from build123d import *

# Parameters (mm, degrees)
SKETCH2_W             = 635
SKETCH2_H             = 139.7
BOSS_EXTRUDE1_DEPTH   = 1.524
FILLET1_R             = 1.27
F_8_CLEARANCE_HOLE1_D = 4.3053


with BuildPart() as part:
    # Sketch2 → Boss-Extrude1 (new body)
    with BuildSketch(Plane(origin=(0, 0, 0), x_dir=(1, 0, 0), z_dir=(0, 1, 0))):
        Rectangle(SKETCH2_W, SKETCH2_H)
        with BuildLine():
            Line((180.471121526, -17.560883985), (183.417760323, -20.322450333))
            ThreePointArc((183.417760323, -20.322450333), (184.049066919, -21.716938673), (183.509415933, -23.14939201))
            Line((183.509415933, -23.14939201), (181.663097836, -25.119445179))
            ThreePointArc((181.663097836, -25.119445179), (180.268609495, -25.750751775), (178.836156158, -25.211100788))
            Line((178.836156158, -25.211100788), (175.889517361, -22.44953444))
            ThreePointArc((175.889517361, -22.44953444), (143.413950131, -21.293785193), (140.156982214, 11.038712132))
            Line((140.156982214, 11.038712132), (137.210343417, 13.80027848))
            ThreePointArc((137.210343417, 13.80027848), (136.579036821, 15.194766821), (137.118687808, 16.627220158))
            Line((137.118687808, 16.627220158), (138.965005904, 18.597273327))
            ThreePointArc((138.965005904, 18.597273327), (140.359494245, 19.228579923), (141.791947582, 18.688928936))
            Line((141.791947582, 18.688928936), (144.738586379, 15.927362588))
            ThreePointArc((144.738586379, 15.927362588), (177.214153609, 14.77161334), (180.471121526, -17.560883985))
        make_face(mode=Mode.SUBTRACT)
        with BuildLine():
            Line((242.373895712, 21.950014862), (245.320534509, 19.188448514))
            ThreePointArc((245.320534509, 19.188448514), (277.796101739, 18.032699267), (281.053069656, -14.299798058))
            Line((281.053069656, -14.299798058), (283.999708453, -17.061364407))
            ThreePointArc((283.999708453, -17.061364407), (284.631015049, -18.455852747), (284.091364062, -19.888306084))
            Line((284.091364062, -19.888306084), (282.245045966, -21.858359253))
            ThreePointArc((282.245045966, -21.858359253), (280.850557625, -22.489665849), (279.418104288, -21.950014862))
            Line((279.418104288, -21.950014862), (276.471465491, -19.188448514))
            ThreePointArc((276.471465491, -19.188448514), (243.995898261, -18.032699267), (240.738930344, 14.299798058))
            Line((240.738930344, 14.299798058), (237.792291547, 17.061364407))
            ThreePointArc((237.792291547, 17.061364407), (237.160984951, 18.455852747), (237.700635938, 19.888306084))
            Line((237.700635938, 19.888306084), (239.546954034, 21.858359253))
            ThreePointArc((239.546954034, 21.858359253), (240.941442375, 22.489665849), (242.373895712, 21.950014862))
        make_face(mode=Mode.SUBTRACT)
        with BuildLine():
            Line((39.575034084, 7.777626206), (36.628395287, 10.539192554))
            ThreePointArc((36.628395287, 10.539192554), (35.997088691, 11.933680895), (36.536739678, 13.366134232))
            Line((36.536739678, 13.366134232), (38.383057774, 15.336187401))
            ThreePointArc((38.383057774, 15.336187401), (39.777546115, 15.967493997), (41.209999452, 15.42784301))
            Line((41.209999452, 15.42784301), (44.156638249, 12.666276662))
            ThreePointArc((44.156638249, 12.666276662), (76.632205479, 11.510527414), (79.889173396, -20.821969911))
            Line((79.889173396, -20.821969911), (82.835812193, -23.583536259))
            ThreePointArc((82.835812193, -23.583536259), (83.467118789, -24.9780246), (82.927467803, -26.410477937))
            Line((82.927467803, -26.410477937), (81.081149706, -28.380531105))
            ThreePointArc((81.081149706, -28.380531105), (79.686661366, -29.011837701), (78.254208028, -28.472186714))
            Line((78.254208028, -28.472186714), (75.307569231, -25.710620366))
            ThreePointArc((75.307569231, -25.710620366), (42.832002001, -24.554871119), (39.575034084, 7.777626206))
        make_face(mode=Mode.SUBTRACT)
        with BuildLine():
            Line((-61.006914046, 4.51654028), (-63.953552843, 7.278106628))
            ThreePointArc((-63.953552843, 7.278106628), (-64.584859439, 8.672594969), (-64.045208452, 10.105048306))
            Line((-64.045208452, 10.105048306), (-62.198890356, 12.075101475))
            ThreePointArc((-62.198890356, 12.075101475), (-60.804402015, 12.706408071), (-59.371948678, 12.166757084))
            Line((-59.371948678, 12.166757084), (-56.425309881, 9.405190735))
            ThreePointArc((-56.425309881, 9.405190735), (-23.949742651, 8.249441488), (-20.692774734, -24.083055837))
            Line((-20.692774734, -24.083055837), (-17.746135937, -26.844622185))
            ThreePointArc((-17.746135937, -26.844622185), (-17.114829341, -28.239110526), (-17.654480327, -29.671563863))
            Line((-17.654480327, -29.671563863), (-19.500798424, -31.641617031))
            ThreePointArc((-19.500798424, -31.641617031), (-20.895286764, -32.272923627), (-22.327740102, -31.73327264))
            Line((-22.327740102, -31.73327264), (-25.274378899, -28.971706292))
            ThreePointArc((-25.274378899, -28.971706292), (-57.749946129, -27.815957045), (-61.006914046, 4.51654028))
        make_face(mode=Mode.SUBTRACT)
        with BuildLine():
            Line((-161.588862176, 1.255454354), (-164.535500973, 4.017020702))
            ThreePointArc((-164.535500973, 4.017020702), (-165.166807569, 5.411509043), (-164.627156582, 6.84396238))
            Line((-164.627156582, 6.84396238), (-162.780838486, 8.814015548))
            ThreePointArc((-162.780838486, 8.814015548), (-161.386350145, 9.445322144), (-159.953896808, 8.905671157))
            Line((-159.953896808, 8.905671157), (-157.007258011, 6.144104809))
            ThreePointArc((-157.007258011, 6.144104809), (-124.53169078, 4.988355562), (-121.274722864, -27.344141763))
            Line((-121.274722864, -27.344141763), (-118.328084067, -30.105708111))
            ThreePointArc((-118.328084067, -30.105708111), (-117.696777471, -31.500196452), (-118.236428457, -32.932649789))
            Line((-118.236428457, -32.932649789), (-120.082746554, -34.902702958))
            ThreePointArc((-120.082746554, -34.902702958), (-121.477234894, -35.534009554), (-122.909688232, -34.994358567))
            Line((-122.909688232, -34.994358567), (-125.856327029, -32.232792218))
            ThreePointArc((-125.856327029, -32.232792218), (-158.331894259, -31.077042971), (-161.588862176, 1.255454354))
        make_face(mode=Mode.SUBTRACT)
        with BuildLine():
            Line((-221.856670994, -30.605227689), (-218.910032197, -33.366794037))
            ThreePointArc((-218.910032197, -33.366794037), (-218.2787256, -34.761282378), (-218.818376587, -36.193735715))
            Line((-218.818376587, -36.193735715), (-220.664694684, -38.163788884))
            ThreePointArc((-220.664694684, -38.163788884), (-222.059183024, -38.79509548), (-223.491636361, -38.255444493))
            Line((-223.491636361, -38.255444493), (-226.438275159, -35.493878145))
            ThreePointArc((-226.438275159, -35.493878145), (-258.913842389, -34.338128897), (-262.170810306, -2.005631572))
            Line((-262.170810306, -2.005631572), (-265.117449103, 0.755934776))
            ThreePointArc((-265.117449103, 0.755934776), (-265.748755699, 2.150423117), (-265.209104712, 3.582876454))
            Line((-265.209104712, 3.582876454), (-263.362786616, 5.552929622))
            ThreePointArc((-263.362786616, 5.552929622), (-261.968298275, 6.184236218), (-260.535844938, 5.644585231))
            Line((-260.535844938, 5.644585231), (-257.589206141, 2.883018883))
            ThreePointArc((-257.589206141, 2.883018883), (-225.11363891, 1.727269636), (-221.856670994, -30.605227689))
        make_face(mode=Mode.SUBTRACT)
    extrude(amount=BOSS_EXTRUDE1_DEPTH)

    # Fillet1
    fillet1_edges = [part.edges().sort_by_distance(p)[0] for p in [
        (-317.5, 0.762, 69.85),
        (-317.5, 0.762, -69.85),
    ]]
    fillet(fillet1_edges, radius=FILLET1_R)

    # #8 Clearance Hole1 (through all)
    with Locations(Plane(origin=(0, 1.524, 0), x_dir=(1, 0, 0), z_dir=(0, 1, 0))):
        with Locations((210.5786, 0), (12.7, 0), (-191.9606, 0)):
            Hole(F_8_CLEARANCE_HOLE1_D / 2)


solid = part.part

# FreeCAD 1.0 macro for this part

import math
import FreeCAD as App
import Part
import Sketcher
Q = App.Units.Quantity


def edges_at(feature, points):
    """Names of the edges that pass closest to the given points."""
    edges = feature.Shape.Edges
    near = lambda p: min(range(len(edges)), key=lambda i: edges[i].distToShape(Part.Vertex(*p))[0])
    return sorted({f"Edge{near(p) + 1}" for p in points})

doc = App.newDocument("Part")
body = doc.addObject("PartDesign::Body", "Body")

# Sketch on XZ plane
sketch1 = body.newObject("Sketcher::SketchObject", "Sketch")
sketch1.AttachmentSupport = (doc.getObject("XZ_Plane"), [""])
sketch1.MapMode = "FlatFace"
sketch1.addGeometry(Part.LineSegment(App.Vector(-317.5, -69.8, 0), App.Vector(-317.5, 69.8, 0)), False)
sketch1.addGeometry(Part.LineSegment(App.Vector(-317.5, 69.8, 0), App.Vector(317.5, 69.8, 0)), False)
sketch1.addGeometry(Part.LineSegment(App.Vector(317.5, 69.8, 0), App.Vector(317.5, -69.8, 0)), False)
sketch1.addGeometry(Part.LineSegment(App.Vector(317.5, -69.8, 0), App.Vector(-317.5, -69.8, 0)), False)
sketch1.addGeometry(Part.ArcOfCircle(Part.Circle(App.Vector(-242, 16.3, 0), App.Vector(0, 0, 1), 24.7), math.radians(-129), math.radians(35)), False)
sketch1.addGeometry(Part.LineSegment(App.Vector(-221.9, 30.6, 0), App.Vector(-218.9, 33.4, 0)), False)
sketch1.addGeometry(Part.ArcOfCircle(Part.Circle(App.Vector(-220.3, 34.8, 0), App.Vector(0, 0, 1), 2), math.radians(-47), math.radians(43)), False)
sketch1.addGeometry(Part.LineSegment(App.Vector(-218.8, 36.2, 0), App.Vector(-220.7, 38.2, 0)), False)
sketch1.addGeometry(Part.ArcOfCircle(Part.Circle(App.Vector(-222.1, 36.8, 0), App.Vector(0, 0, 1), 2), math.radians(43), math.radians(133)), False)
sketch1.addGeometry(Part.LineSegment(App.Vector(-223.5, 38.3, 0), App.Vector(-226.4, 35.5, 0)), False)
sketch1.addGeometry(Part.ArcOfCircle(Part.Circle(App.Vector(-242, 16.3, 0), App.Vector(0, 0, 1), 24.7), math.radians(51), math.radians(215)), False)
sketch1.addGeometry(Part.LineSegment(App.Vector(-262.2, 2, 0), App.Vector(-265.1, -0.8, 0)), False)
sketch1.addGeometry(Part.ArcOfCircle(Part.Circle(App.Vector(-263.7, -2.2, 0), App.Vector(0, 0, 1), 2), math.radians(133), math.radians(223)), False)
sketch1.addGeometry(Part.LineSegment(App.Vector(-265.2, -3.6, 0), App.Vector(-263.4, -5.6, 0)), False)
sketch1.addGeometry(Part.ArcOfCircle(Part.Circle(App.Vector(-261.9, -4.2, 0), App.Vector(0, 0, 1), 2), math.radians(-137), math.radians(-47)), False)
sketch1.addGeometry(Part.LineSegment(App.Vector(-260.5, -5.6, 0), App.Vector(-257.6, -2.9, 0)), False)
sketch1.addGeometry(Part.ArcOfCircle(Part.Circle(App.Vector(-141.4, 13, 0), App.Vector(0, 0, 1), 24.7), math.radians(51), math.radians(215)), False)
sketch1.addGeometry(Part.LineSegment(App.Vector(-161.6, -1.3, 0), App.Vector(-164.5, -4, 0)), False)
sketch1.addGeometry(Part.ArcOfCircle(Part.Circle(App.Vector(-163.2, -5.5, 0), App.Vector(0, 0, 1), 2), math.radians(133), math.radians(223)), False)
sketch1.addGeometry(Part.LineSegment(App.Vector(-164.6, -6.8, 0), App.Vector(-162.8, -8.8, 0)), False)
sketch1.addGeometry(Part.ArcOfCircle(Part.Circle(App.Vector(-161.3, -7.4, 0), App.Vector(0, 0, 1), 2), math.radians(-137), math.radians(-47)), False)
sketch1.addGeometry(Part.LineSegment(App.Vector(-160, -8.9, 0), App.Vector(-157, -6.1, 0)), False)
sketch1.addGeometry(Part.ArcOfCircle(Part.Circle(App.Vector(-141.4, 13, 0), App.Vector(0, 0, 1), 24.7), math.radians(-129), math.radians(35)), False)
sketch1.addGeometry(Part.LineSegment(App.Vector(-121.3, 27.3, 0), App.Vector(-118.3, 30.1, 0)), False)
sketch1.addGeometry(Part.ArcOfCircle(Part.Circle(App.Vector(-119.7, 31.6, 0), App.Vector(0, 0, 1), 2), math.radians(-47), math.radians(43)), False)
sketch1.addGeometry(Part.LineSegment(App.Vector(-118.2, 32.9, 0), App.Vector(-120.1, 34.9, 0)), False)
sketch1.addGeometry(Part.ArcOfCircle(Part.Circle(App.Vector(-121.5, 33.5, 0), App.Vector(0, 0, 1), 2), math.radians(43), math.radians(133)), False)
sketch1.addGeometry(Part.LineSegment(App.Vector(-122.9, 35, 0), App.Vector(-125.9, 32.2, 0)), False)
sketch1.addGeometry(Part.ArcOfCircle(Part.Circle(App.Vector(-40.8, 9.8, 0), App.Vector(0, 0, 1), 24.7), math.radians(51), math.radians(215)), False)
sketch1.addGeometry(Part.LineSegment(App.Vector(-61, -4.5, 0), App.Vector(-64, -7.3, 0)), False)
sketch1.addGeometry(Part.ArcOfCircle(Part.Circle(App.Vector(-62.6, -8.7, 0), App.Vector(0, 0, 1), 2), math.radians(133), math.radians(223)), False)
sketch1.addGeometry(Part.LineSegment(App.Vector(-64, -10.1, 0), App.Vector(-62.2, -12.1, 0)), False)
sketch1.addGeometry(Part.ArcOfCircle(Part.Circle(App.Vector(-60.7, -10.7, 0), App.Vector(0, 0, 1), 2), math.radians(-137), math.radians(-47)), False)
sketch1.addGeometry(Part.LineSegment(App.Vector(-59.4, -12.2, 0), App.Vector(-56.4, -9.4, 0)), False)
sketch1.addGeometry(Part.ArcOfCircle(Part.Circle(App.Vector(-40.8, 9.8, 0), App.Vector(0, 0, 1), 24.7), math.radians(-129), math.radians(35)), False)
sketch1.addGeometry(Part.LineSegment(App.Vector(-20.7, 24.1, 0), App.Vector(-17.7, 26.8, 0)), False)
sketch1.addGeometry(Part.ArcOfCircle(Part.Circle(App.Vector(-19.1, 28.3, 0), App.Vector(0, 0, 1), 2), math.radians(-47), math.radians(43)), False)
sketch1.addGeometry(Part.LineSegment(App.Vector(-17.7, 29.7, 0), App.Vector(-19.5, 31.6, 0)), False)
sketch1.addGeometry(Part.ArcOfCircle(Part.Circle(App.Vector(-21, 30.3, 0), App.Vector(0, 0, 1), 2), math.radians(43), math.radians(133)), False)
sketch1.addGeometry(Part.LineSegment(App.Vector(-22.3, 31.7, 0), App.Vector(-25.3, 29, 0)), False)
sketch1.addGeometry(Part.ArcOfCircle(Part.Circle(App.Vector(59.7, 6.5, 0), App.Vector(0, 0, 1), 24.7), math.radians(51), math.radians(215)), False)
sketch1.addGeometry(Part.LineSegment(App.Vector(39.6, -7.8, 0), App.Vector(36.6, -10.5, 0)), False)
sketch1.addGeometry(Part.ArcOfCircle(Part.Circle(App.Vector(38, -12, 0), App.Vector(0, 0, 1), 2), math.radians(133), math.radians(223)), False)
sketch1.addGeometry(Part.LineSegment(App.Vector(36.5, -13.4, 0), App.Vector(38.4, -15.3, 0)), False)
sketch1.addGeometry(Part.ArcOfCircle(Part.Circle(App.Vector(39.8, -14, 0), App.Vector(0, 0, 1), 2), math.radians(-137), math.radians(-47)), False)
sketch1.addGeometry(Part.LineSegment(App.Vector(41.2, -15.4, 0), App.Vector(44.2, -12.7, 0)), False)
sketch1.addGeometry(Part.ArcOfCircle(Part.Circle(App.Vector(59.7, 6.5, 0), App.Vector(0, 0, 1), 24.7), math.radians(-129), math.radians(35)), False)
sketch1.addGeometry(Part.LineSegment(App.Vector(79.9, 20.8, 0), App.Vector(82.8, 23.6, 0)), False)
sketch1.addGeometry(Part.ArcOfCircle(Part.Circle(App.Vector(81.5, 25, 0), App.Vector(0, 0, 1), 2), math.radians(-47), math.radians(43)), False)
sketch1.addGeometry(Part.LineSegment(App.Vector(82.9, 26.4, 0), App.Vector(81.1, 28.4, 0)), False)
sketch1.addGeometry(Part.ArcOfCircle(Part.Circle(App.Vector(79.6, 27, 0), App.Vector(0, 0, 1), 2), math.radians(43), math.radians(133)), False)
sketch1.addGeometry(Part.LineSegment(App.Vector(78.3, 28.5, 0), App.Vector(75.3, 25.7, 0)), False)
sketch1.addGeometry(Part.ArcOfCircle(Part.Circle(App.Vector(160.3, 3.3, 0), App.Vector(0, 0, 1), 24.7), math.radians(-129), math.radians(35)), False)
sketch1.addGeometry(Part.LineSegment(App.Vector(180.5, 17.6, 0), App.Vector(183.4, 20.3, 0)), False)
sketch1.addGeometry(Part.ArcOfCircle(Part.Circle(App.Vector(182.1, 21.8, 0), App.Vector(0, 0, 1), 2), math.radians(-47), math.radians(43)), False)
sketch1.addGeometry(Part.LineSegment(App.Vector(183.5, 23.1, 0), App.Vector(181.7, 25.1, 0)), False)
sketch1.addGeometry(Part.ArcOfCircle(Part.Circle(App.Vector(180.2, 23.8, 0), App.Vector(0, 0, 1), 2), math.radians(43), math.radians(133)), False)
sketch1.addGeometry(Part.LineSegment(App.Vector(178.8, 25.2, 0), App.Vector(175.9, 22.4, 0)), False)
sketch1.addGeometry(Part.ArcOfCircle(Part.Circle(App.Vector(160.3, 3.3, 0), App.Vector(0, 0, 1), 24.7), math.radians(51), math.radians(215)), False)
sketch1.addGeometry(Part.LineSegment(App.Vector(140.2, -11, 0), App.Vector(137.2, -13.8, 0)), False)
sketch1.addGeometry(Part.ArcOfCircle(Part.Circle(App.Vector(138.6, -15.3, 0), App.Vector(0, 0, 1), 2), math.radians(133), math.radians(223)), False)
sketch1.addGeometry(Part.LineSegment(App.Vector(137.1, -16.6, 0), App.Vector(139, -18.6, 0)), False)
sketch1.addGeometry(Part.ArcOfCircle(Part.Circle(App.Vector(140.4, -17.2, 0), App.Vector(0, 0, 1), 2), math.radians(-137), math.radians(-47)), False)
sketch1.addGeometry(Part.LineSegment(App.Vector(141.8, -18.7, 0), App.Vector(144.7, -15.9, 0)), False)
sketch1.addGeometry(Part.ArcOfCircle(Part.Circle(App.Vector(241, -20.5, 0), App.Vector(0, 0, 1), 2), math.radians(-137), math.radians(-47)), False)
sketch1.addGeometry(Part.LineSegment(App.Vector(242.4, -22, 0), App.Vector(245.3, -19.2, 0)), False)
sketch1.addGeometry(Part.ArcOfCircle(Part.Circle(App.Vector(260.9, 0, 0), App.Vector(0, 0, 1), 24.7), math.radians(-129), math.radians(35)), False)
sketch1.addGeometry(Part.LineSegment(App.Vector(281.1, 14.3, 0), App.Vector(284, 17.1, 0)), False)
sketch1.addGeometry(Part.ArcOfCircle(Part.Circle(App.Vector(282.6, 18.5, 0), App.Vector(0, 0, 1), 2), math.radians(-47), math.radians(43)), False)
sketch1.addGeometry(Part.LineSegment(App.Vector(284.1, 19.9, 0), App.Vector(282.2, 21.9, 0)), False)
sketch1.addGeometry(Part.ArcOfCircle(Part.Circle(App.Vector(280.8, 20.5, 0), App.Vector(0, 0, 1), 2), math.radians(43), math.radians(133)), False)
sketch1.addGeometry(Part.LineSegment(App.Vector(279.4, 22, 0), App.Vector(276.5, 19.2, 0)), False)
sketch1.addGeometry(Part.ArcOfCircle(Part.Circle(App.Vector(260.9, 0, 0), App.Vector(0, 0, 1), 24.7), math.radians(51), math.radians(215)), False)
sketch1.addGeometry(Part.LineSegment(App.Vector(240.7, -14.3, 0), App.Vector(237.8, -17.1, 0)), False)
sketch1.addGeometry(Part.ArcOfCircle(Part.Circle(App.Vector(239.2, -18.5, 0), App.Vector(0, 0, 1), 2), math.radians(133), math.radians(223)), False)
sketch1.addGeometry(Part.LineSegment(App.Vector(237.7, -19.9, 0), App.Vector(239.5, -21.9, 0)), False)
sketch1.addConstraint(Sketcher.Constraint("Coincident", 0, 2, 1, 1))
sketch1.addConstraint(Sketcher.Constraint("Coincident", 1, 2, 2, 1))
sketch1.addConstraint(Sketcher.Constraint("Coincident", 2, 2, 3, 1))
sketch1.addConstraint(Sketcher.Constraint("Coincident", 3, 2, 0, 1))
sketch1.addConstraint(Sketcher.Constraint("Coincident", 4, 2, 5, 1))
sketch1.addConstraint(Sketcher.Constraint("Tangent", 5, 2, 6, 1))
sketch1.addConstraint(Sketcher.Constraint("Tangent", 6, 2, 7, 1))
sketch1.addConstraint(Sketcher.Constraint("Tangent", 7, 2, 8, 1))
sketch1.addConstraint(Sketcher.Constraint("Tangent", 8, 2, 9, 1))
sketch1.addConstraint(Sketcher.Constraint("Coincident", 9, 2, 10, 1))
sketch1.addConstraint(Sketcher.Constraint("Coincident", 10, 2, 11, 1))
sketch1.addConstraint(Sketcher.Constraint("Tangent", 11, 2, 12, 1))
sketch1.addConstraint(Sketcher.Constraint("Tangent", 12, 2, 13, 1))
sketch1.addConstraint(Sketcher.Constraint("Tangent", 13, 2, 14, 1))
sketch1.addConstraint(Sketcher.Constraint("Tangent", 14, 2, 15, 1))
sketch1.addConstraint(Sketcher.Constraint("Coincident", 15, 2, 4, 1))
sketch1.addConstraint(Sketcher.Constraint("Coincident", 16, 2, 17, 1))
sketch1.addConstraint(Sketcher.Constraint("Tangent", 17, 2, 18, 1))
sketch1.addConstraint(Sketcher.Constraint("Tangent", 18, 2, 19, 1))
sketch1.addConstraint(Sketcher.Constraint("Tangent", 19, 2, 20, 1))
sketch1.addConstraint(Sketcher.Constraint("Tangent", 20, 2, 21, 1))
sketch1.addConstraint(Sketcher.Constraint("Coincident", 21, 2, 22, 1))
sketch1.addConstraint(Sketcher.Constraint("Coincident", 22, 2, 23, 1))
sketch1.addConstraint(Sketcher.Constraint("Tangent", 23, 2, 24, 1))
sketch1.addConstraint(Sketcher.Constraint("Tangent", 24, 2, 25, 1))
sketch1.addConstraint(Sketcher.Constraint("Tangent", 25, 2, 26, 1))
sketch1.addConstraint(Sketcher.Constraint("Tangent", 26, 2, 27, 1))
sketch1.addConstraint(Sketcher.Constraint("Coincident", 27, 2, 16, 1))
sketch1.addConstraint(Sketcher.Constraint("Coincident", 28, 2, 29, 1))
sketch1.addConstraint(Sketcher.Constraint("Tangent", 29, 2, 30, 1))
sketch1.addConstraint(Sketcher.Constraint("Tangent", 30, 2, 31, 1))
sketch1.addConstraint(Sketcher.Constraint("Tangent", 31, 2, 32, 1))
sketch1.addConstraint(Sketcher.Constraint("Tangent", 32, 2, 33, 1))
sketch1.addConstraint(Sketcher.Constraint("Coincident", 33, 2, 34, 1))
sketch1.addConstraint(Sketcher.Constraint("Coincident", 34, 2, 35, 1))
sketch1.addConstraint(Sketcher.Constraint("Tangent", 35, 2, 36, 1))
sketch1.addConstraint(Sketcher.Constraint("Tangent", 36, 2, 37, 1))
sketch1.addConstraint(Sketcher.Constraint("Tangent", 37, 2, 38, 1))
sketch1.addConstraint(Sketcher.Constraint("Tangent", 38, 2, 39, 1))
sketch1.addConstraint(Sketcher.Constraint("Coincident", 39, 2, 28, 1))
sketch1.addConstraint(Sketcher.Constraint("Coincident", 40, 2, 41, 1))
sketch1.addConstraint(Sketcher.Constraint("Tangent", 41, 2, 42, 1))
sketch1.addConstraint(Sketcher.Constraint("Tangent", 42, 2, 43, 1))
sketch1.addConstraint(Sketcher.Constraint("Tangent", 43, 2, 44, 1))
sketch1.addConstraint(Sketcher.Constraint("Tangent", 44, 2, 45, 1))
sketch1.addConstraint(Sketcher.Constraint("Coincident", 45, 2, 46, 1))
sketch1.addConstraint(Sketcher.Constraint("Coincident", 46, 2, 47, 1))
sketch1.addConstraint(Sketcher.Constraint("Tangent", 47, 2, 48, 1))
sketch1.addConstraint(Sketcher.Constraint("Tangent", 48, 2, 49, 1))
sketch1.addConstraint(Sketcher.Constraint("Tangent", 49, 2, 50, 1))
sketch1.addConstraint(Sketcher.Constraint("Tangent", 50, 2, 51, 1))
sketch1.addConstraint(Sketcher.Constraint("Coincident", 51, 2, 40, 1))
sketch1.addConstraint(Sketcher.Constraint("Coincident", 52, 2, 53, 1))
sketch1.addConstraint(Sketcher.Constraint("Tangent", 53, 2, 54, 1))
sketch1.addConstraint(Sketcher.Constraint("Tangent", 54, 2, 55, 1))
sketch1.addConstraint(Sketcher.Constraint("Tangent", 55, 2, 56, 1))
sketch1.addConstraint(Sketcher.Constraint("Tangent", 56, 2, 57, 1))
sketch1.addConstraint(Sketcher.Constraint("Coincident", 57, 2, 58, 1))
sketch1.addConstraint(Sketcher.Constraint("Coincident", 58, 2, 59, 1))
sketch1.addConstraint(Sketcher.Constraint("Tangent", 59, 2, 60, 1))
sketch1.addConstraint(Sketcher.Constraint("Tangent", 60, 2, 61, 1))
sketch1.addConstraint(Sketcher.Constraint("Tangent", 61, 2, 62, 1))
sketch1.addConstraint(Sketcher.Constraint("Tangent", 62, 2, 63, 1))
sketch1.addConstraint(Sketcher.Constraint("Coincident", 63, 2, 52, 1))
sketch1.addConstraint(Sketcher.Constraint("Tangent", 64, 2, 65, 1))
sketch1.addConstraint(Sketcher.Constraint("Coincident", 65, 2, 66, 1))
sketch1.addConstraint(Sketcher.Constraint("Coincident", 66, 2, 67, 1))
sketch1.addConstraint(Sketcher.Constraint("Tangent", 67, 2, 68, 1))
sketch1.addConstraint(Sketcher.Constraint("Tangent", 68, 2, 69, 1))
sketch1.addConstraint(Sketcher.Constraint("Tangent", 69, 2, 70, 1))
sketch1.addConstraint(Sketcher.Constraint("Tangent", 70, 2, 71, 1))
sketch1.addConstraint(Sketcher.Constraint("Coincident", 71, 2, 72, 1))
sketch1.addConstraint(Sketcher.Constraint("Coincident", 72, 2, 73, 1))
sketch1.addConstraint(Sketcher.Constraint("Tangent", 73, 2, 74, 1))
sketch1.addConstraint(Sketcher.Constraint("Tangent", 74, 2, 75, 1))
sketch1.addConstraint(Sketcher.Constraint("Tangent", 75, 2, 64, 1))
sketch1.addConstraint(Sketcher.Constraint("Vertical", 0))
sketch1.addConstraint(Sketcher.Constraint("Horizontal", 1))
sketch1.addConstraint(Sketcher.Constraint("Vertical", 2))
sketch1.addConstraint(Sketcher.Constraint("Horizontal", 3))
sketch1.addConstraint(Sketcher.Constraint("Coincident", 10, 3, 4, 3))
sketch1.addConstraint(Sketcher.Constraint("Coincident", 22, 3, 16, 3))
sketch1.addConstraint(Sketcher.Constraint("Coincident", 34, 3, 28, 3))
sketch1.addConstraint(Sketcher.Constraint("Coincident", 46, 3, 40, 3))
sketch1.addConstraint(Sketcher.Constraint("Coincident", 58, 3, 52, 3))
sketch1.addConstraint(Sketcher.Constraint("Coincident", 72, 3, 66, 3))
sketch1.addConstraint(Sketcher.Constraint("Equal", 6, 8))
sketch1.addConstraint(Sketcher.Constraint("Equal", 4, 10))
sketch1.addConstraint(Sketcher.Constraint("Equal", 8, 12))
sketch1.addConstraint(Sketcher.Constraint("Equal", 12, 14))
sketch1.addConstraint(Sketcher.Constraint("Equal", 10, 16))
sketch1.addConstraint(Sketcher.Constraint("Equal", 14, 18))
sketch1.addConstraint(Sketcher.Constraint("Equal", 18, 20))
sketch1.addConstraint(Sketcher.Constraint("Equal", 16, 22))
sketch1.addConstraint(Sketcher.Constraint("Equal", 20, 24))
sketch1.addConstraint(Sketcher.Constraint("Equal", 24, 26))
sketch1.addConstraint(Sketcher.Constraint("Equal", 22, 28))
sketch1.addConstraint(Sketcher.Constraint("Equal", 26, 30))
sketch1.addConstraint(Sketcher.Constraint("Equal", 30, 32))
sketch1.addConstraint(Sketcher.Constraint("Equal", 28, 34))
sketch1.addConstraint(Sketcher.Constraint("Equal", 32, 36))
sketch1.addConstraint(Sketcher.Constraint("Equal", 36, 38))
sketch1.addConstraint(Sketcher.Constraint("Equal", 34, 40))
sketch1.addConstraint(Sketcher.Constraint("Equal", 38, 42))
sketch1.addConstraint(Sketcher.Constraint("Equal", 42, 44))
sketch1.addConstraint(Sketcher.Constraint("Equal", 40, 46))
sketch1.addConstraint(Sketcher.Constraint("Equal", 44, 48))
sketch1.addConstraint(Sketcher.Constraint("Equal", 48, 50))
sketch1.addConstraint(Sketcher.Constraint("Equal", 46, 52))
sketch1.addConstraint(Sketcher.Constraint("Equal", 50, 54))
sketch1.addConstraint(Sketcher.Constraint("Equal", 54, 56))
sketch1.addConstraint(Sketcher.Constraint("Equal", 52, 58))
sketch1.addConstraint(Sketcher.Constraint("Equal", 56, 60))
sketch1.addConstraint(Sketcher.Constraint("Equal", 60, 62))
sketch1.addConstraint(Sketcher.Constraint("Equal", 62, 64))
sketch1.addConstraint(Sketcher.Constraint("Equal", 58, 66))
sketch1.addConstraint(Sketcher.Constraint("Equal", 64, 68))
sketch1.addConstraint(Sketcher.Constraint("Equal", 68, 70))
sketch1.addConstraint(Sketcher.Constraint("Equal", 66, 72))
sketch1.addConstraint(Sketcher.Constraint("Equal", 70, 74))
sketch1.addConstraint(Sketcher.Constraint("Symmetric", 0, 2, 2, 2, -1, 1))
sketch1.addConstraint(Sketcher.Constraint("PointOnObject", 66, 3, -1))
sketch1.addConstraint(Sketcher.Constraint("Perpendicular", 5, 7))
sketch1.addConstraint(Sketcher.Constraint("Perpendicular", 7, 9))
sketch1.addConstraint(Sketcher.Constraint("Parallel", 9, 11))
sketch1.addConstraint(Sketcher.Constraint("Perpendicular", 11, 13))
sketch1.addConstraint(Sketcher.Constraint("Perpendicular", 13, 15))
sketch1.addConstraint(Sketcher.Constraint("Parallel", 15, 17))
sketch1.addConstraint(Sketcher.Constraint("Perpendicular", 17, 19))
sketch1.addConstraint(Sketcher.Constraint("Perpendicular", 19, 21))
sketch1.addConstraint(Sketcher.Constraint("Parallel", 21, 23))
sketch1.addConstraint(Sketcher.Constraint("Perpendicular", 23, 25))
sketch1.addConstraint(Sketcher.Constraint("Perpendicular", 25, 27))
sketch1.addConstraint(Sketcher.Constraint("Parallel", 27, 29))
sketch1.addConstraint(Sketcher.Constraint("Perpendicular", 29, 31))
sketch1.addConstraint(Sketcher.Constraint("Perpendicular", 31, 33))
sketch1.addConstraint(Sketcher.Constraint("Parallel", 33, 35))
sketch1.addConstraint(Sketcher.Constraint("Perpendicular", 35, 37))
sketch1.addConstraint(Sketcher.Constraint("Perpendicular", 37, 39))
sketch1.addConstraint(Sketcher.Constraint("Parallel", 39, 41))
sketch1.addConstraint(Sketcher.Constraint("Perpendicular", 41, 43))
sketch1.addConstraint(Sketcher.Constraint("Perpendicular", 43, 45))
sketch1.addConstraint(Sketcher.Constraint("Parallel", 45, 47))
sketch1.addConstraint(Sketcher.Constraint("Perpendicular", 47, 49))
sketch1.addConstraint(Sketcher.Constraint("Perpendicular", 49, 51))
sketch1.addConstraint(Sketcher.Constraint("Parallel", 51, 53))
sketch1.addConstraint(Sketcher.Constraint("Perpendicular", 53, 55))
sketch1.addConstraint(Sketcher.Constraint("Perpendicular", 55, 57))
sketch1.addConstraint(Sketcher.Constraint("Parallel", 57, 59))
sketch1.addConstraint(Sketcher.Constraint("Perpendicular", 59, 61))
sketch1.addConstraint(Sketcher.Constraint("Perpendicular", 61, 63))
sketch1.addConstraint(Sketcher.Constraint("Parallel", 63, 65))
sketch1.addConstraint(Sketcher.Constraint("Parallel", 65, 67))
sketch1.addConstraint(Sketcher.Constraint("Perpendicular", 67, 69))
sketch1.addConstraint(Sketcher.Constraint("Perpendicular", 69, 71))
sketch1.addConstraint(Sketcher.Constraint("Parallel", 71, 73))
sketch1.addConstraint(Sketcher.Constraint("Perpendicular", 73, 75))
sketch1.addConstraint(Sketcher.Constraint("Equal", 5, 9))
sketch1.addConstraint(Sketcher.Constraint("Equal", 9, 11))
sketch1.addConstraint(Sketcher.Constraint("Equal", 7, 13))
sketch1.addConstraint(Sketcher.Constraint("Equal", 11, 15))
sketch1.addConstraint(Sketcher.Constraint("Equal", 15, 17))
sketch1.addConstraint(Sketcher.Constraint("Equal", 13, 19))
sketch1.addConstraint(Sketcher.Constraint("Equal", 17, 21))
sketch1.addConstraint(Sketcher.Constraint("Equal", 21, 23))
sketch1.addConstraint(Sketcher.Constraint("Equal", 19, 25))
sketch1.addConstraint(Sketcher.Constraint("Equal", 23, 27))
sketch1.addConstraint(Sketcher.Constraint("Equal", 27, 29))
sketch1.addConstraint(Sketcher.Constraint("Equal", 25, 31))
sketch1.addConstraint(Sketcher.Constraint("Equal", 29, 33))
sketch1.addConstraint(Sketcher.Constraint("Equal", 33, 35))
sketch1.addConstraint(Sketcher.Constraint("Equal", 31, 37))
sketch1.addConstraint(Sketcher.Constraint("Equal", 35, 39))
sketch1.addConstraint(Sketcher.Constraint("Equal", 39, 41))
sketch1.addConstraint(Sketcher.Constraint("Equal", 37, 43))
sketch1.addConstraint(Sketcher.Constraint("Equal", 41, 45))
sketch1.addConstraint(Sketcher.Constraint("Equal", 45, 47))
sketch1.addConstraint(Sketcher.Constraint("Equal", 43, 49))
sketch1.addConstraint(Sketcher.Constraint("Equal", 47, 51))
sketch1.addConstraint(Sketcher.Constraint("Equal", 51, 53))
sketch1.addConstraint(Sketcher.Constraint("Equal", 49, 55))
sketch1.addConstraint(Sketcher.Constraint("Equal", 53, 57))
sketch1.addConstraint(Sketcher.Constraint("Equal", 57, 59))
sketch1.addConstraint(Sketcher.Constraint("Equal", 55, 61))
sketch1.addConstraint(Sketcher.Constraint("Equal", 59, 63))
sketch1.addConstraint(Sketcher.Constraint("Equal", 63, 65))
sketch1.addConstraint(Sketcher.Constraint("Equal", 65, 67))
sketch1.addConstraint(Sketcher.Constraint("Equal", 61, 69))
sketch1.addConstraint(Sketcher.Constraint("Equal", 67, 71))
sketch1.addConstraint(Sketcher.Constraint("Equal", 71, 73))
sketch1.addConstraint(Sketcher.Constraint("Equal", 69, 75))
sketch1.addConstraint(Sketcher.Constraint("DistanceX", 1, 1, 1, 2, Q("25 in")))
sketch1.addConstraint(Sketcher.Constraint("DistanceY", 0, 1, 0, 2, Q("5.5 in")))
sketch1.addConstraint(Sketcher.Constraint("Radius", 4, Q("0.973 in")))
sketch1.addConstraint(Sketcher.Constraint("Radius", 6, 2.0))
sketch1.addConstraint(Sketcher.Constraint("DistanceX", 4, 3, -1, 1, Q("9.5281 in")))
sketch1.addConstraint(Sketcher.Constraint("Distance", 7, 2.7))
sketch1.addConstraint(Sketcher.Constraint("DistanceX", -1, 1, 56, 3, 180.203799))
sketch1.addConstraint(Sketcher.Constraint("DistanceX", -1, 1, 66, 3, 260.896))
sketch1.addConstraint(Sketcher.Constraint("DistanceX", 17, 2, -1, 1, 164.535501))
sketch1.addConstraint(Sketcher.Constraint("DistanceY", 31, 2, -1, 1, 12.075101))
sketch1.addConstraint(Sketcher.Constraint("DistanceX", 37, 2, -1, 1, 19.500798))
sketch1.addConstraint(Sketcher.Constraint("DistanceX", -1, 1, 44, 2, 41.209999))
sketch1.addConstraint(Sketcher.Constraint("DistanceY", -1, 1, 56, 2, 25.211101))
sketch1.addConstraint(Sketcher.Constraint("DistanceY", -1, 1, 66, 2, 14.299798))
sketch1.addConstraint(Sketcher.Constraint("Distance", 5, 4.038431))
sketch1.addConstraint(Sketcher.Constraint("DistanceY", -1, 1, 4, 3, 16.30543))
sketch1.addConstraint(Sketcher.Constraint("DistanceY", 18, 3, -1, 1, 5.476319))
sketch1.addConstraint(Sketcher.Constraint("DistanceY", -1, 1, 40, 3, 6.522172))
pad1 = body.newObject("PartDesign::Pad", "Pad")
pad1.Profile = sketch1
pad1.Length = Q("0.06 in")
pad1.Reversed = True
doc.recompute()

fillet = body.newObject("PartDesign::Fillet", "Fillet")
fillet.Base = (pad1, edges_at(pad1, [(-317.5, 0.762, 69.85), (-317.5, 0.762, -69.85)]))
fillet.Radius = Q("0.05 in")

# Sketch on XZ plane
sketch2 = body.newObject("Sketcher::SketchObject", "Sketch001")
sketch2.AttachmentSupport = (doc.getObject("XZ_Plane"), [""])
sketch2.MapMode = "FlatFace"
sketch2.AttachmentOffset = App.Placement(App.Vector(0, 0, -0.06 * 25.4), App.Rotation())
sketch2.addGeometry(Part.Circle(App.Vector(210.6, 0, 0), App.Vector(0, 0, 1), 2.2), False)
sketch2.addGeometry(Part.Circle(App.Vector(12.7, 0, 0), App.Vector(0, 0, 1), 2.2), False)
sketch2.addGeometry(Part.Circle(App.Vector(-192, 0, 0), App.Vector(0, 0, 1), 2.2), False)
sketch2.addConstraint(Sketcher.Constraint("Equal", 0, 1))
sketch2.addConstraint(Sketcher.Constraint("Equal", 1, 2))
sketch2.addConstraint(Sketcher.Constraint("PointOnObject", 0, 3, -1))
sketch2.addConstraint(Sketcher.Constraint("PointOnObject", 1, 3, -1))
sketch2.addConstraint(Sketcher.Constraint("PointOnObject", 2, 3, -1))
sketch2.addConstraint(Sketcher.Constraint("Diameter", 0, Q("0.1695 in")))
sketch2.addConstraint(Sketcher.Constraint("DistanceX", -1, 1, 1, 3, Q("0.5 in")))
sketch2.addConstraint(Sketcher.Constraint("DistanceX", 2, 3, 0, 3, Q("15.848 in")))
sketch2.addConstraint(Sketcher.Constraint("DistanceX", -1, 1, 0, 3, 210.5786))
doc.recompute()
hole = body.newObject("PartDesign::Hole", "Hole")
hole.Profile = sketch2
hole.ThreadType = "None"
hole.Diameter = Q("0.1695 in")
hole.DepthType = "ThroughAll"
hole.Reversed = True

doc.recompute()
